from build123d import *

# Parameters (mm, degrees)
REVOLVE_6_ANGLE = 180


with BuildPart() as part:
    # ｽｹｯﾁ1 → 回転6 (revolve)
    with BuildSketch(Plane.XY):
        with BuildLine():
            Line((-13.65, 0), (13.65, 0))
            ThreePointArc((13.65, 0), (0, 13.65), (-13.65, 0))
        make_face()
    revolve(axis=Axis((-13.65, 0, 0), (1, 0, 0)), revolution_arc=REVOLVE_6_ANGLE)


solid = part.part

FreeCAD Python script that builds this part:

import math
import FreeCAD as App
import Part
import Sketcher

V = App.Vector

doc = App.newDocument("Part")
body = doc.addObject("PartDesign::Body", "Body")

# Sketch on XY plane
sketch1 = doc.addObject("Sketcher::SketchObject", "Sketch")
body.addObject(sketch1)
sketch1.AttachmentSupport = (doc.XY_Plane, [""])
sketch1.MapMode = "FlatFace"
sketch1.addGeometry([
    Part.LineSegment(V(-14, 0, 0), V(14, 0, 0)),
    Part.ArcOfCircle(Part.Circle(V(0, 0, 0), V(0, 0, 1), 14), math.radians(0), math.radians(180)),
], False)
sketch1.addConstraint([
    Sketcher.Constraint("Coincident", 0, 1, 1, 2),
    Sketcher.Constraint("Coincident", 1, 1, 0, 2),
    Sketcher.Constraint("Horizontal", 0),
    Sketcher.Constraint("Coincident", 1, 3, -1, 1),
    Sketcher.Constraint("PointOnObject", 0, 1, -1),
    Sketcher.Constraint("Radius", 1, 13.65),
])
revolution = doc.addObject("PartDesign::Revolution", "Revolution")
body.addObject(revolution)
revolution.Profile = sketch1
revolution.ReferenceAxis = (sketch1, ["H_Axis"])
revolution.Angle = 180

doc.recompute()
